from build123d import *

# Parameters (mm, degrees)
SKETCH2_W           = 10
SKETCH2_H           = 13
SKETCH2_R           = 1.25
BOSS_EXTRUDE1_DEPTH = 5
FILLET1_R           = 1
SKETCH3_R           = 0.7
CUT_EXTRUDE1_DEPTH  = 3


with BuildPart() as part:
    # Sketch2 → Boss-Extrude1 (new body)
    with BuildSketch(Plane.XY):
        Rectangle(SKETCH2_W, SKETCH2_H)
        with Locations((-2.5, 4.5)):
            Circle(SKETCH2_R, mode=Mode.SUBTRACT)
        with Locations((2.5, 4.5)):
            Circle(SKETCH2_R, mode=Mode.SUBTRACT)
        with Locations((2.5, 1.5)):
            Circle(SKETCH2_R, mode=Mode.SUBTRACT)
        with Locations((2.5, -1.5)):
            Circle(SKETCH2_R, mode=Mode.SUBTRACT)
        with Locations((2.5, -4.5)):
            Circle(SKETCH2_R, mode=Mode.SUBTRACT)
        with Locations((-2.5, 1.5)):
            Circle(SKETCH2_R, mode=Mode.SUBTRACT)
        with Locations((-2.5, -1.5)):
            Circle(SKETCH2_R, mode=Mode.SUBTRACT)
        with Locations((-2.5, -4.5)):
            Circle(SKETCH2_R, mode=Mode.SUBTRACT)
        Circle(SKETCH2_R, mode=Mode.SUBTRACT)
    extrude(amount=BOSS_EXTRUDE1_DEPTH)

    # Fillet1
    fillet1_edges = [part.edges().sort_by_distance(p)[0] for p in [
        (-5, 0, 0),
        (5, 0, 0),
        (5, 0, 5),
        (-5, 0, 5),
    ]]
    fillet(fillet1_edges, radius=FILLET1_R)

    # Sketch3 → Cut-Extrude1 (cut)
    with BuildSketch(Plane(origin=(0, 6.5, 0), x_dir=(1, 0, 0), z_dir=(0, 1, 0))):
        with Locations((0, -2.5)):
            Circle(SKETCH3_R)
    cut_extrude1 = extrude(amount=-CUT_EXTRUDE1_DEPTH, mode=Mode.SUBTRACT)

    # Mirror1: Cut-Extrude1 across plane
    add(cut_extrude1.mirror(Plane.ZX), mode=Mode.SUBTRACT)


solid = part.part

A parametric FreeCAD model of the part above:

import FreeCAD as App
import Part
import Sketcher
from FreeCAD import Vector


def edges_at(feature, points):
    """Names of the edges that pass closest to the given points."""
    edges = feature.Shape.Edges
    near = lambda p: min(range(len(edges)), key=lambda i: edges[i].distToShape(Part.Vertex(*p))[0])
    return sorted({f"Edge{near(p) + 1}" for p in points})

doc = App.newDocument("Part")
params = doc.addObject("Spreadsheet::Sheet", "Params")
for row, (alias, value) in enumerate([
    ("sketch1_diameter", "2.5 mm"),
    ("sketch1_width", "10 mm"),
    ("sketch1_height", "13 mm"),
    ("pad1_length", "5 mm"),
    ("fillet_radius", "1 mm"),
    ("sketch2_diameter", "1.4 mm"),
    ("pocket1_length", "3 mm"),
], start=1):
    params.set(f"A{row}", alias)
    params.set(f"B{row}", "=" + value)
    params.setAlias(f"B{row}", alias)

body = doc.addObject("PartDesign::Body", "Body")

sketch1 = body.newObject("Sketcher::SketchObject", "Sketch")
sketch1.AttachmentSupport = (doc.getObject("XY_Plane"), [""])
sketch1.MapMode = "FlatFace"
sketch1.addGeometry([
    Part.LineSegment(Vector(-5, 6.5, 0), Vector(-5, -6.5, 0)),
    Part.LineSegment(Vector(-5, -6.5, 0), Vector(5, -6.5, 0)),
    Part.LineSegment(Vector(5, -6.5, 0), Vector(5, 6.5, 0)),
    Part.LineSegment(Vector(5, 6.5, 0), Vector(-5, 6.5, 0)),
    Part.Circle(Vector(-2.5, -4.5, 0), Vector(0, 0, 1), 1.2),
    Part.Circle(Vector(-2.5, -1.5, 0), Vector(0, 0, 1), 1.2),
    Part.Circle(Vector(2.5, -4.5, 0), Vector(0, 0, 1), 1.2),
    Part.Circle(Vector(2.5, -1.5, 0), Vector(0, 0, 1), 1.2),
    Part.Circle(Vector(-2.5, 1.5, 0), Vector(0, 0, 1), 1.2),
    Part.Circle(Vector(-2.5, 4.5, 0), Vector(0, 0, 1), 1.2),
    Part.Circle(Vector(0, 0, 0), Vector(0, 0, 1), 1.2),
    Part.Circle(Vector(2.5, 1.5, 0), Vector(0, 0, 1), 1.2),
    Part.Circle(Vector(2.5, 4.5, 0), Vector(0, 0, 1), 1.2),
], False)
sketch1.addConstraint([
    Sketcher.Constraint("Coincident", 0, 2, 1, 1),
    Sketcher.Constraint("Coincident", 1, 2, 2, 1),
    Sketcher.Constraint("Coincident", 2, 2, 3, 1),
    Sketcher.Constraint("Coincident", 3, 2, 0, 1),
    Sketcher.Constraint("Vertical", 0),
    Sketcher.Constraint("Horizontal", 1),
    Sketcher.Constraint("Vertical", 2),
    Sketcher.Constraint("Horizontal", 3),
    Sketcher.Constraint("Coincident", 10, 3, -1, 1),
    Sketcher.Constraint("Equal", 4, 5),
    Sketcher.Constraint("Equal", 5, 6),
    Sketcher.Constraint("Equal", 6, 7),
    Sketcher.Constraint("Equal", 7, 8),
    Sketcher.Constraint("Equal", 8, 9),
    Sketcher.Constraint("Equal", 9, 10),
    Sketcher.Constraint("Equal", 10, 11),
    Sketcher.Constraint("Equal", 11, 12),
    Sketcher.Constraint("Symmetric", 7, 3, 8, 3, -1, 1),
    Sketcher.Constraint("Symmetric", 6, 3, 9, 3, -1, 1),
    Sketcher.Constraint("Symmetric", 5, 3, 11, 3, -1, 1),
    Sketcher.Constraint("Symmetric", 4, 3, 12, 3, -1, 1),
    Sketcher.Constraint("Symmetric", 0, 2, 2, 2, -1, 1),
    Sketcher.Constraint("Symmetric", 4, 3, 6, 3, -2),
    Sketcher.Constraint("Symmetric", 5, 3, 7, 3, -2),
    Sketcher.Constraint("Vertical", 4, 3, 5, 3),
    Sketcher.Constraint("Diameter", 4, 2.5),
    Sketcher.Constraint("DistanceX", 1, 1, 1, 2, 10.0),
    Sketcher.Constraint("DistanceY", 0, 2, 0, 1, 13.0),
    Sketcher.Constraint("DistanceY", 4, 3, 5, 3, 3.0),
    Sketcher.Constraint("DistanceX", 4, 3, 6, 3, 5.0),
    Sketcher.Constraint("DistanceY", 5, 3, 8, 3, 3.0),
])
sketch1.setExpression("Constraints[25]", "Params.sketch1_diameter")
sketch1.setExpression("Constraints[26]", "Params.sketch1_width")
sketch1.setExpression("Constraints[27]", "Params.sketch1_height")
pad1 = body.newObject("PartDesign::Pad", "Pad")
pad1.Profile = sketch1
pad1.setExpression("Length", "Params.pad1_length")
doc.recompute()

fillet = body.newObject("PartDesign::Fillet", "Fillet")
fillet.Base = (pad1, edges_at(pad1, [
    (-5, 0, 0),
    (5, 0, 0),
    (5, 0, 5),
    (-5, 0, 5),
]))
fillet.setExpression("Radius", "Params.fillet_radius")

sketch2 = body.newObject("Sketcher::SketchObject", "Sketch001")
sketch2.AttachmentSupport = (doc.getObject("XZ_Plane"), [""])
sketch2.MapMode = "FlatFace"
sketch2.AttachmentOffset = App.Placement(Vector(0, 0, -6.5), App.Rotation())
sketch2.addGeometry(Part.Circle(Vector(0, 2.5, 0), Vector(0, 0, 1), 0.7), False)
sketch2.addConstraint([
    Sketcher.Constraint("PointOnObject", 0, 3, -2),
    Sketcher.Constraint("Diameter", 0, 1.4),
    Sketcher.Constraint("DistanceY", -1, 1, 0, 3, 2.5),
])
sketch2.setExpression("Constraints[1]", "Params.sketch2_diameter")
pocket1 = body.newObject("PartDesign::Pocket", "Pocket")
pocket1.Profile = sketch2
pocket1.setExpression("Length", "Params.pocket1_length")
pocket1.Reversed = True
doc.recompute()

mirrored = body.newObject("PartDesign::Mirrored", "Mirrored")
mirrored.Originals = [pocket1]
mirrored.MirrorPlane = (doc.getObject("XZ_Plane"), [""])
body.Tip = mirrored

doc.recompute()
